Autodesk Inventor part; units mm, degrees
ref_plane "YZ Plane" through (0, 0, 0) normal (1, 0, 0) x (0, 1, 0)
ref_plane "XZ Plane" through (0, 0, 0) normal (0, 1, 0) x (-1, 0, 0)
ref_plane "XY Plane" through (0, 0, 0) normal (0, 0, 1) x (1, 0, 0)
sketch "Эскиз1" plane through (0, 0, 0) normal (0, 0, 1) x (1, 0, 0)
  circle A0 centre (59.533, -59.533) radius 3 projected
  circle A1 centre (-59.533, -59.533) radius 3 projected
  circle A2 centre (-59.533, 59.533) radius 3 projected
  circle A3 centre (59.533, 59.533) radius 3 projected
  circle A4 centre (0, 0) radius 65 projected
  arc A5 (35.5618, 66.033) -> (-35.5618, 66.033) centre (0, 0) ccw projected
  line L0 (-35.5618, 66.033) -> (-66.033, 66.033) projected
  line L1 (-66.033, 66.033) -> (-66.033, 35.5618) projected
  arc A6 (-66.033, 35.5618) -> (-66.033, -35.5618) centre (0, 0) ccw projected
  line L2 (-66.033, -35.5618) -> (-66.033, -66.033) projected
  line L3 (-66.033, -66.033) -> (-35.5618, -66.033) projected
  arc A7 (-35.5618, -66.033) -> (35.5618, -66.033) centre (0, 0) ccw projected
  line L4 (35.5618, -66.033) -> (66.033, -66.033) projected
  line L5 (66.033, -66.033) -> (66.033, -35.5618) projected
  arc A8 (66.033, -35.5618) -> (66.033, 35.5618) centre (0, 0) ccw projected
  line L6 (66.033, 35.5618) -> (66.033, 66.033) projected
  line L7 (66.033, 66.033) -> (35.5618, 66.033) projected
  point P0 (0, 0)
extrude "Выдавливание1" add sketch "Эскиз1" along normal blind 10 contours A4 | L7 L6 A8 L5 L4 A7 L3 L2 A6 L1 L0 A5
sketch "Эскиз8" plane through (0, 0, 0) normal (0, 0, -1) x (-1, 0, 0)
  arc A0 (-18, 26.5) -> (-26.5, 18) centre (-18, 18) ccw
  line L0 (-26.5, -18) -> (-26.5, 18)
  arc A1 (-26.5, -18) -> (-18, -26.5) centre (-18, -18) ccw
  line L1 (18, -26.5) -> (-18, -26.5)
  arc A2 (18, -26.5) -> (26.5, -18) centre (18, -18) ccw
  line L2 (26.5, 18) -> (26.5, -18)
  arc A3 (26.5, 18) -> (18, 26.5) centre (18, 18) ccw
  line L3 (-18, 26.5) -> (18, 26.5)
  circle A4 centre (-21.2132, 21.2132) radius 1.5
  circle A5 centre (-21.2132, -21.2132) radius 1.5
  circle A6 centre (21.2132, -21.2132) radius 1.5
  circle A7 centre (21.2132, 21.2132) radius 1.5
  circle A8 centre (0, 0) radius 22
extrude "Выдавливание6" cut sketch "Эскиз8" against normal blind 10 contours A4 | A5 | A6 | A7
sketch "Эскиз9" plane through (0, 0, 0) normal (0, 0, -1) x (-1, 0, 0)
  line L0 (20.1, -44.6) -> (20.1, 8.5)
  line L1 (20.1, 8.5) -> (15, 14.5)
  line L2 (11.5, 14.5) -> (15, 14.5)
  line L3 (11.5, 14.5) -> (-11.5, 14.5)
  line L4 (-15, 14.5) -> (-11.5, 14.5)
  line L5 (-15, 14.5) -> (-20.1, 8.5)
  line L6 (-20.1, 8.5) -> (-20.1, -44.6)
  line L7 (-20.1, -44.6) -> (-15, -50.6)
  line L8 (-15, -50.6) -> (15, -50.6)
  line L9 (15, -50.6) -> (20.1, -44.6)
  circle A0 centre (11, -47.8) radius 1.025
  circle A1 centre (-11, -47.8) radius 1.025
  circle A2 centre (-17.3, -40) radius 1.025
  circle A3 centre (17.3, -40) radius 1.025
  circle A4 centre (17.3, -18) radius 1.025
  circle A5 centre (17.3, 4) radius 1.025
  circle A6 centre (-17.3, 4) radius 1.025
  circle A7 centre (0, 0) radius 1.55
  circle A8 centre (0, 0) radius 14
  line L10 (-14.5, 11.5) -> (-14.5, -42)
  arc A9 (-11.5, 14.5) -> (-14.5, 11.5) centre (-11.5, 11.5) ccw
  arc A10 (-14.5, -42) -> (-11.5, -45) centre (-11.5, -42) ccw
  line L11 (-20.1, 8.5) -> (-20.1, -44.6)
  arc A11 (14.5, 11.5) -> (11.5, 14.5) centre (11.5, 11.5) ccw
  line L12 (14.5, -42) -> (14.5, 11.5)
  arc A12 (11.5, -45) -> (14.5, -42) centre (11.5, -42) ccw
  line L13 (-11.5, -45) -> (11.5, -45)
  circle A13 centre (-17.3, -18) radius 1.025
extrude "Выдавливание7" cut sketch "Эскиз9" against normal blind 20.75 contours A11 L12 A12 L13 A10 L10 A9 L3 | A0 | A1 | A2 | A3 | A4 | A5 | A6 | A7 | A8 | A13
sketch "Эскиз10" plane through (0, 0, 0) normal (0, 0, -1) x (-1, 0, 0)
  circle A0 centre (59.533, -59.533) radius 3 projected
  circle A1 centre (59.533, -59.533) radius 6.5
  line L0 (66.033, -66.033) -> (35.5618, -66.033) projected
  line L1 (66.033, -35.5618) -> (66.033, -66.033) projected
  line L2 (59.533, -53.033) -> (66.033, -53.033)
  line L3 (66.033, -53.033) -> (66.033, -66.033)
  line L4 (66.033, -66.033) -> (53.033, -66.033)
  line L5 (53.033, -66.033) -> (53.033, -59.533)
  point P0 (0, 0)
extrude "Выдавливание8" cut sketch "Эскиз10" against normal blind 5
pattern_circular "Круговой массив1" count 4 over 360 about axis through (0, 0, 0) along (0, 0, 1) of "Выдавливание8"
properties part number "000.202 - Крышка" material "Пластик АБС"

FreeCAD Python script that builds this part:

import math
import FreeCAD as App
import Part
import Sketcher

doc = App.newDocument("Part")
body = doc.addObject("PartDesign::Body", "Body")

# Sketch on XY plane
sketch1 = doc.addObject("Sketcher::SketchObject", "Sketch")
body.addObject(sketch1)
sketch1.AttachmentSupport = (doc.XY_Plane, [""])
sketch1.MapMode = "FlatFace"
sketch1.addGeometry([
    Part.LineSegment(App.Vector(66, 66, 0), App.Vector(35.6, 66, 0)),  # 0
    Part.ArcOfCircle(Part.Circle(App.Vector(0, 0, 0), App.Vector(0, 0, 1), 75), math.radians(62), math.radians(118)),  # 1
    Part.LineSegment(App.Vector(-35.6, 66, 0), App.Vector(-66, 66, 0)),  # 2
    Part.LineSegment(App.Vector(-66, 66, 0), App.Vector(-66, 35.6, 0)),  # 3
    Part.ArcOfCircle(Part.Circle(App.Vector(0, 0, 0), App.Vector(0, 0, 1), 75), math.radians(152), math.radians(208)),  # 4
    Part.LineSegment(App.Vector(-66, -35.6, 0), App.Vector(-66, -66, 0)),  # 5
    Part.LineSegment(App.Vector(-66, -66, 0), App.Vector(-35.6, -66, 0)),  # 6
    Part.ArcOfCircle(Part.Circle(App.Vector(0, 0, 0), App.Vector(0, 0, 1), 75), math.radians(-118), math.radians(-62)),  # 7
    Part.LineSegment(App.Vector(35.6, -66, 0), App.Vector(66, -66, 0)),  # 8
    Part.LineSegment(App.Vector(66, -66, 0), App.Vector(66, -35.6, 0)),  # 9
    Part.ArcOfCircle(Part.Circle(App.Vector(0, 0, 0), App.Vector(0, 0, 1), 75), math.radians(-28), math.radians(28)),  # 10
    Part.LineSegment(App.Vector(66, 35.6, 0), App.Vector(66, 66, 0)),  # 11
    Part.Circle(App.Vector(-59.5, -59.5, 0), App.Vector(0, 0, 1), 3),  # 12
    Part.Circle(App.Vector(59.5, -59.5, 0), App.Vector(0, 0, 1), 3),  # 13
    Part.Circle(App.Vector(-59.5, 59.5, 0), App.Vector(0, 0, 1), 3),  # 14
    Part.Circle(App.Vector(59.5, 59.5, 0), App.Vector(0, 0, 1), 3),  # 15
], False)
sketch1.addConstraint([
    Sketcher.Constraint("Coincident", 0, 2, 1, 1),
    Sketcher.Constraint("Coincident", 1, 2, 2, 1),
    Sketcher.Constraint("Coincident", 2, 2, 3, 1),
    Sketcher.Constraint("Coincident", 3, 2, 4, 1),
    Sketcher.Constraint("Coincident", 4, 2, 5, 1),
    Sketcher.Constraint("Coincident", 5, 2, 6, 1),
    Sketcher.Constraint("Coincident", 6, 2, 7, 1),
    Sketcher.Constraint("Coincident", 7, 2, 8, 1),
    Sketcher.Constraint("Coincident", 8, 2, 9, 1),
    Sketcher.Constraint("Coincident", 9, 2, 10, 1),
    Sketcher.Constraint("Coincident", 10, 2, 11, 1),
    Sketcher.Constraint("Coincident", 11, 2, 0, 1),
    Sketcher.Constraint("Horizontal", 0),
    Sketcher.Constraint("Horizontal", 2),
    Sketcher.Constraint("Vertical", 3),
    Sketcher.Constraint("Vertical", 5),
    Sketcher.Constraint("Horizontal", 6),
    Sketcher.Constraint("Horizontal", 8),
    Sketcher.Constraint("Vertical", 9),
    Sketcher.Constraint("Vertical", 11),
    Sketcher.Constraint("Coincident", 1, 3, -1, 1),
    Sketcher.Constraint("Coincident", 4, 3, -1, 1),
    Sketcher.Constraint("Coincident", 7, 3, -1, 1),
    Sketcher.Constraint("Coincident", 10, 3, -1, 1),
    Sketcher.Constraint("Equal", 1, 4),
    Sketcher.Constraint("Equal", 4, 7),
    Sketcher.Constraint("Equal", 7, 10),
    Sketcher.Constraint("Equal", 12, 13),
    Sketcher.Constraint("Equal", 13, 14),
    Sketcher.Constraint("Equal", 14, 15),
    Sketcher.Constraint("Symmetric", 13, 3, 14, 3, -1, 1),
    Sketcher.Constraint("Symmetric", 12, 3, 15, 3, -1, 1),
    Sketcher.Constraint("Symmetric", 2, 2, 8, 2, -1, 1),
    Sketcher.Constraint("Symmetric", 5, 2, 11, 2, -1, 1),
    Sketcher.Constraint("Symmetric", 12, 3, 13, 3, -2),
    Sketcher.Constraint("Symmetric", 5, 2, 8, 2, -2),
    Sketcher.Constraint("Equal", 8, 3),
    Sketcher.Constraint("Diameter", 12, 6.0),
    Sketcher.Constraint("Radius", 1, 75.0),
    Sketcher.Constraint("DistanceY", 15, 3, 0, 2, 6.5),
    Sketcher.Constraint("DistanceX", 2, 2, 14, 3, 6.5),
    Sketcher.Constraint("DistanceX", 0, 2, 0, 1, 30.4712),
])
pad1 = doc.addObject("PartDesign::Pad", "Pad")
body.addObject(pad1)
pad1.Profile = sketch1
pad1.Length = 10

# Sketch on XY plane
sketch2 = doc.addObject("Sketcher::SketchObject", "Sketch001")
body.addObject(sketch2)
sketch2.AttachmentSupport = (doc.XY_Plane, [""])
sketch2.MapMode = "FlatFace"
sketch2.addGeometry([
    Part.Circle(App.Vector(21.2, 21.2, 0), App.Vector(0, 0, 1), 1.5),
    Part.Circle(App.Vector(21.2, -21.2, 0), App.Vector(0, 0, 1), 1.5),
    Part.Circle(App.Vector(-21.2, -21.2, 0), App.Vector(0, 0, 1), 1.5),
    Part.Circle(App.Vector(-21.2, 21.2, 0), App.Vector(0, 0, 1), 1.5),
], False)
sketch2.addConstraint([
    Sketcher.Constraint("Equal", 0, 1),
    Sketcher.Constraint("Equal", 1, 2),
    Sketcher.Constraint("Equal", 2, 3),
    Sketcher.Constraint("Symmetric", 0, 3, 2, 3, -1, 1),
    Sketcher.Constraint("Symmetric", 1, 3, 3, 3, -1, 1),
    Sketcher.Constraint("Symmetric", 1, 3, 2, 3, -2),
    Sketcher.Constraint("Diameter", 0, 3.0),
    Sketcher.Constraint("DistanceX", -1, 1, 0, 3, 21.2132),
    Sketcher.Constraint("DistanceY", -1, 1, 0, 3, 21.2132),
])
pocket1 = doc.addObject("PartDesign::Pocket", "Pocket")
body.addObject(pocket1)
pocket1.Profile = sketch2
pocket1.Length = 10
pocket1.Reversed = True

# Sketch on XY plane
sketch3 = doc.addObject("Sketcher::SketchObject", "Sketch002")
body.addObject(sketch3)
sketch3.AttachmentSupport = (doc.XY_Plane, [""])
sketch3.MapMode = "FlatFace"
sketch3.addGeometry([
    Part.ArcOfCircle(Part.Circle(App.Vector(-11.5, 11.5, 0), App.Vector(0, 0, 1), 3), math.radians(90), math.radians(180)),  # 0
    Part.LineSegment(App.Vector(-11.5, 14.5, 0), App.Vector(11.5, 14.5, 0)),  # 1
    Part.ArcOfCircle(Part.Circle(App.Vector(11.5, 11.5, 0), App.Vector(0, 0, 1), 3), math.radians(0), math.radians(90)),  # 2
    Part.LineSegment(App.Vector(14.5, 11.5, 0), App.Vector(14.5, -42, 0)),  # 3
    Part.ArcOfCircle(Part.Circle(App.Vector(11.5, -42, 0), App.Vector(0, 0, 1), 3), math.radians(-90), math.radians(0)),  # 4
    Part.LineSegment(App.Vector(11.5, -45, 0), App.Vector(-11.5, -45, 0)),  # 5
    Part.ArcOfCircle(Part.Circle(App.Vector(-11.5, -42, 0), App.Vector(0, 0, 1), 3), math.radians(180), math.radians(270)),  # 6
    Part.LineSegment(App.Vector(-14.5, -42, 0), App.Vector(-14.5, 11.5, 0)),  # 7
    Part.Circle(App.Vector(-11, -47.8, 0), App.Vector(0, 0, 1), 1),  # 8
    Part.Circle(App.Vector(11, -47.8, 0), App.Vector(0, 0, 1), 1),  # 9
    Part.Circle(App.Vector(17.3, -40, 0), App.Vector(0, 0, 1), 1),  # 10
    Part.Circle(App.Vector(-17.3, -40, 0), App.Vector(0, 0, 1), 1),  # 11
    Part.Circle(App.Vector(-17.3, -18, 0), App.Vector(0, 0, 1), 1),  # 12
    Part.Circle(App.Vector(-17.3, 4, 0), App.Vector(0, 0, 1), 1),  # 13
    Part.Circle(App.Vector(17.3, 4, 0), App.Vector(0, 0, 1), 1),  # 14
    Part.Circle(App.Vector(17.3, -18, 0), App.Vector(0, 0, 1), 1),  # 15
], False)
sketch3.addConstraint([
    Sketcher.Constraint("Tangent", 0, 1, 1, 1),
    Sketcher.Constraint("Tangent", 1, 2, 2, 2),
    Sketcher.Constraint("Tangent", 2, 1, 3, 1),
    Sketcher.Constraint("Tangent", 3, 2, 4, 2),
    Sketcher.Constraint("Tangent", 4, 1, 5, 1),
    Sketcher.Constraint("Tangent", 5, 2, 6, 2),
    Sketcher.Constraint("Tangent", 6, 1, 7, 1),
    Sketcher.Constraint("Tangent", 7, 2, 0, 2),
    Sketcher.Constraint("Horizontal", 1),
    Sketcher.Constraint("Vertical", 3),
    Sketcher.Constraint("Horizontal", 5),
    Sketcher.Constraint("Vertical", 7),
    Sketcher.Constraint("Equal", 0, 2),
    Sketcher.Constraint("Equal", 2, 4),
    Sketcher.Constraint("Equal", 4, 6),
    Sketcher.Constraint("Equal", 8, 9),
    Sketcher.Constraint("Equal", 9, 10),
    Sketcher.Constraint("Equal", 10, 11),
    Sketcher.Constraint("Equal", 11, 12),
    Sketcher.Constraint("Equal", 12, 13),
    Sketcher.Constraint("Equal", 13, 14),
    Sketcher.Constraint("Equal", 14, 15),
    Sketcher.Constraint("Symmetric", 8, 3, 9, 3, -2),
    Sketcher.Constraint("Symmetric", 10, 3, 11, 3, -2),
    Sketcher.Constraint("Symmetric", 13, 3, 14, 3, -2),
    Sketcher.Constraint("Symmetric", 12, 3, 15, 3, -2),
    Sketcher.Constraint("Vertical", 11, 3, 12, 3),
    Sketcher.Constraint("Vertical", 12, 3, 13, 3),
    Sketcher.Constraint("Radius", 0, 3.0),
    Sketcher.Constraint("Diameter", 8, 2.05),
    Sketcher.Constraint("DistanceX", 1, 1, 1, 2, 23.0),
    Sketcher.Constraint("DistanceY", 3, 2, 3, 1, 53.5),
    Sketcher.Constraint("DistanceY", 4, 3, -1, 1, 42.0),
    Sketcher.Constraint("DistanceX", 8, 3, -1, 1, 11.0),
    Sketcher.Constraint("DistanceY", 10, 3, -1, 1, 40.0),
    Sketcher.Constraint("DistanceY", 12, 3, -1, 1, 18.0),
    Sketcher.Constraint("DistanceY", -1, 1, 13, 3, 4.0),
    Sketcher.Constraint("DistanceX", 0, 3, -1, 1, 11.5),
    Sketcher.Constraint("DistanceY", 8, 3, -1, 1, 47.8),
    Sketcher.Constraint("DistanceX", -1, 1, 10, 3, 17.3),
])
pocket2 = doc.addObject("PartDesign::Pocket", "Pocket001")
body.addObject(pocket2)
pocket2.Profile = sketch3
pocket2.Length = 20.75
pocket2.Reversed = True

# Sketch on XY plane
sketch4 = doc.addObject("Sketcher::SketchObject", "Sketch003")
body.addObject(sketch4)
sketch4.AttachmentSupport = (doc.XY_Plane, [""])
sketch4.MapMode = "FlatFace"
sketch4.addGeometry([
    Part.ArcOfCircle(Part.Circle(App.Vector(-59.5, -59.5, 0), App.Vector(0, 0, 1), 6.5), math.radians(0), math.radians(90)),  # 0
    Part.LineSegment(App.Vector(-53, -59.5, 0), App.Vector(-53, -66, 0)),  # 1
    Part.LineSegment(App.Vector(-53, -66, 0), App.Vector(-66, -66, 0)),  # 2
    Part.LineSegment(App.Vector(-66, -66, 0), App.Vector(-66, -53, 0)),  # 3
    Part.LineSegment(App.Vector(-66, -53, 0), App.Vector(-59.5, -53, 0)),  # 4
    Part.Circle(App.Vector(-59.5, -59.5, 0), App.Vector(0, 0, 1), 3),  # 5
], False)
sketch4.addConstraint([
    Sketcher.Constraint("Tangent", 0, 1, 1, 1),
    Sketcher.Constraint("Coincident", 1, 2, 2, 1),
    Sketcher.Constraint("Coincident", 2, 2, 3, 1),
    Sketcher.Constraint("Coincident", 3, 2, 4, 1),
    Sketcher.Constraint("Tangent", 4, 2, 0, 2),
    Sketcher.Constraint("Vertical", 1),
    Sketcher.Constraint("Horizontal", 2),
    Sketcher.Constraint("Vertical", 3),
    Sketcher.Constraint("Horizontal", 4),
    Sketcher.Constraint("Coincident", 5, 3, 0, 3),
    Sketcher.Constraint("Equal", 4, 1),
    Sketcher.Constraint("Diameter", 5, 6.0),
    Sketcher.Constraint("Radius", 0, 6.5),
    Sketcher.Constraint("DistanceX", 2, 2, 2, 1, 13.0),
    Sketcher.Constraint("DistanceX", 0, 3, -1, 1, 59.533),
    Sketcher.Constraint("DistanceY", 0, 3, -1, 1, 59.533),
])
pocket3 = doc.addObject("PartDesign::Pocket", "Pocket002")
body.addObject(pocket3)
pocket3.Profile = sketch4
pocket3.Length = 5
pocket3.Reversed = True
doc.recompute()

polarpattern = doc.addObject("PartDesign::PolarPattern", "PolarPattern")
body.addObject(polarpattern)
polarpattern.Originals = [pocket3]
polarpattern.Axis = (doc.Z_Axis, [""])
polarpattern.Angle = 360
polarpattern.Occurrences = 4
body.Tip = polarpattern

doc.recompute()
